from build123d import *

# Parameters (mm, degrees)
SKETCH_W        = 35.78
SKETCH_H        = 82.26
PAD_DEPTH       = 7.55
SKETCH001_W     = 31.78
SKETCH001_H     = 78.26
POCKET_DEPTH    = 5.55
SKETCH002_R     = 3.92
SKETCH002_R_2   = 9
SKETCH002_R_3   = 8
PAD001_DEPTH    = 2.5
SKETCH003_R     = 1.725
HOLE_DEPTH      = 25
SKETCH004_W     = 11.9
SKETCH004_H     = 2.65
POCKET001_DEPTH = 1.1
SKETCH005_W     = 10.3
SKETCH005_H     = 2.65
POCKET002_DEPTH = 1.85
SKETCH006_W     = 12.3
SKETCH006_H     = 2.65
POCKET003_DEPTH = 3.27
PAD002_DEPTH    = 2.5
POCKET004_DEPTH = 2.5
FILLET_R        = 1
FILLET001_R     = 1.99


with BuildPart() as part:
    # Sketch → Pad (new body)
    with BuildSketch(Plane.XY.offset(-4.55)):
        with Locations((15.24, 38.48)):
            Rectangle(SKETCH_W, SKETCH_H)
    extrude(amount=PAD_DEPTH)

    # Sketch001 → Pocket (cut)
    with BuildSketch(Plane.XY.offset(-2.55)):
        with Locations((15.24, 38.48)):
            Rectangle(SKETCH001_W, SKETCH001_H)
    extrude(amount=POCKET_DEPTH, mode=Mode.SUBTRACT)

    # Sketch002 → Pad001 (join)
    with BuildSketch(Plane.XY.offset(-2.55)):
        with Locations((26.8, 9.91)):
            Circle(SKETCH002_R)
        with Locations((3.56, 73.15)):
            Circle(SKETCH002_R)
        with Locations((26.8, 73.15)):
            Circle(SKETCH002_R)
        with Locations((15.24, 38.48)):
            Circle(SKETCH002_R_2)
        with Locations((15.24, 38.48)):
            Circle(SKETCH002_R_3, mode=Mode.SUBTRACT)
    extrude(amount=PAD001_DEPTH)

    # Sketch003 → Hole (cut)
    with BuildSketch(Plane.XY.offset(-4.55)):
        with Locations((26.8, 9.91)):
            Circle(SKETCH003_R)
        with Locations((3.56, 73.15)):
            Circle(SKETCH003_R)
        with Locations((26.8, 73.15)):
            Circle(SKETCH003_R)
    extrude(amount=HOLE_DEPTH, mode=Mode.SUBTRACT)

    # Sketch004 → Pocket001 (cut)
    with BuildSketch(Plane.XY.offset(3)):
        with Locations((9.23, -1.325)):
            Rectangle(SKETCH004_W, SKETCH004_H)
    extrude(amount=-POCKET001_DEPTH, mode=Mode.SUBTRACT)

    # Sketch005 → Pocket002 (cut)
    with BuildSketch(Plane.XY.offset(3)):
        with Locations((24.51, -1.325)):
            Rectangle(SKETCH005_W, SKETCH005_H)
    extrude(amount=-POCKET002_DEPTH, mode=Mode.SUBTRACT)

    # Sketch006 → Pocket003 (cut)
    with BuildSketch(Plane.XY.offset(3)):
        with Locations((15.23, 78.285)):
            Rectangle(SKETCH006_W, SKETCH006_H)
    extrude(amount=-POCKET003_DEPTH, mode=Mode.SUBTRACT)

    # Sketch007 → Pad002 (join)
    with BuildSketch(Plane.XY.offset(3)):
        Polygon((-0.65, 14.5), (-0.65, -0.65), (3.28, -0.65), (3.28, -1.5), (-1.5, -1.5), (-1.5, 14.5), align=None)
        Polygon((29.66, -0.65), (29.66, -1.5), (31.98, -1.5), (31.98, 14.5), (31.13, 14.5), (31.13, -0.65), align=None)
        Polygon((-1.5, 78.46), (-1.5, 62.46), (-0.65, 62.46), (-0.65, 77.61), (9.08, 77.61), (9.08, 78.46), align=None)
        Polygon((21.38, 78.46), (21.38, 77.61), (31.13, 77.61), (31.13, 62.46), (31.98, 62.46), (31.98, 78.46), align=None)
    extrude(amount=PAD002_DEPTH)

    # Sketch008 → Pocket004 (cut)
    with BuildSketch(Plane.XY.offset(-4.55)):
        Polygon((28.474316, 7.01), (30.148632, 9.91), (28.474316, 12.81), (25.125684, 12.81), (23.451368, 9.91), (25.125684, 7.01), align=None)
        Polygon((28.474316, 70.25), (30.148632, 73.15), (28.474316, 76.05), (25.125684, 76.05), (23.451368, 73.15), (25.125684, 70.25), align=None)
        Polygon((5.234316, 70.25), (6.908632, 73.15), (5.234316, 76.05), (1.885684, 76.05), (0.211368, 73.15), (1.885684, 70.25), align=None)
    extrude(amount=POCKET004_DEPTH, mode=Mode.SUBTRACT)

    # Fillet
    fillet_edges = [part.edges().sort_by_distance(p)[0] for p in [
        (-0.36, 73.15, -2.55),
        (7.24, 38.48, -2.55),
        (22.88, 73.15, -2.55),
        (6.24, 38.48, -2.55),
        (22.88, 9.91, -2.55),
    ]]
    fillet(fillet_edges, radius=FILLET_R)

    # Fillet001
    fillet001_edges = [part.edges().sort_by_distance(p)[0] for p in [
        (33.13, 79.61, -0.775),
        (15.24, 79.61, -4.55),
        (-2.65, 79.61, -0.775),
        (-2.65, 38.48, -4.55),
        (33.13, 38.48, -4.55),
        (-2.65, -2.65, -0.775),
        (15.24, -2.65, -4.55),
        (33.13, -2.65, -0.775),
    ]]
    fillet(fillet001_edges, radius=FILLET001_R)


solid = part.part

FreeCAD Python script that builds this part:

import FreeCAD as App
import Part
import Sketcher
from FreeCAD import Vector
Q = App.Units.Quantity


def edges_at(feature, points):
    """Names of the edges that pass closest to the given points."""
    edges = feature.Shape.Edges
    near = lambda p: min(range(len(edges)), key=lambda i: edges[i].distToShape(Part.Vertex(*p))[0])
    return sorted({f"Edge{near(p) + 1}" for p in points})

doc = App.newDocument("Part")
body = doc.addObject("PartDesign::Body", "Body")

# Sketch on XY plane
sketch1 = doc.addObject("Sketcher::SketchObject", "Sketch")
body.addObject(sketch1)
sketch1.AttachmentSupport = (doc.XY_Plane, [""])
sketch1.MapMode = "FlatFace"
sketch1.AttachmentOffset = App.Placement(Vector(0, 0, -4.55), App.Rotation())
sketch1.addGeometry(Part.LineSegment(Vector(-3, 80, 0), Vector(-3, -3, 0)), False)
sketch1.addGeometry(Part.LineSegment(Vector(-3, -3, 0), Vector(33, -3, 0)), False)
sketch1.addGeometry(Part.LineSegment(Vector(33, -3, 0), Vector(33, 80, 0)), False)
sketch1.addGeometry(Part.LineSegment(Vector(33, 80, 0), Vector(-3, 80, 0)), False)
sketch1.addConstraint(Sketcher.Constraint("Coincident", 0, 2, 1, 1))
sketch1.addConstraint(Sketcher.Constraint("Coincident", 1, 2, 2, 1))
sketch1.addConstraint(Sketcher.Constraint("Coincident", 2, 2, 3, 1))
sketch1.addConstraint(Sketcher.Constraint("Coincident", 3, 2, 0, 1))
sketch1.addConstraint(Sketcher.Constraint("Vertical", 0))
sketch1.addConstraint(Sketcher.Constraint("Horizontal", 1))
sketch1.addConstraint(Sketcher.Constraint("Vertical", 2))
sketch1.addConstraint(Sketcher.Constraint("Horizontal", 3))
sketch1.addConstraint(Sketcher.Constraint("DistanceX", 1, 1, 1, 2, 35.78))
sketch1.addConstraint(Sketcher.Constraint("DistanceY", 0, 2, 0, 1, 82.26))
sketch1.addConstraint(Sketcher.Constraint("DistanceX", 0, 2, -1, 1, 2.65))
sketch1.addConstraint(Sketcher.Constraint("DistanceY", 0, 2, -1, 1, 2.65))
pad1 = doc.addObject("PartDesign::Pad", "Pad")
body.addObject(pad1)
pad1.Profile = sketch1
pad1.Length = 7.55

# Sketch on XY plane
sketch2 = doc.addObject("Sketcher::SketchObject", "Sketch001")
body.addObject(sketch2)
sketch2.AttachmentSupport = (doc.XY_Plane, [""])
sketch2.MapMode = "FlatFace"
sketch2.AttachmentOffset = App.Placement(Vector(0, 0, -2.55), App.Rotation())
sketch2.addGeometry(Part.LineSegment(Vector(-1, 78, 0), Vector(-1, -1, 0)), False)
sketch2.addGeometry(Part.LineSegment(Vector(-1, -1, 0), Vector(31, -1, 0)), False)
sketch2.addGeometry(Part.LineSegment(Vector(31, -1, 0), Vector(31, 78, 0)), False)
sketch2.addGeometry(Part.LineSegment(Vector(31, 78, 0), Vector(-1, 78, 0)), False)
sketch2.addConstraint(Sketcher.Constraint("Coincident", 0, 2, 1, 1))
sketch2.addConstraint(Sketcher.Constraint("Coincident", 1, 2, 2, 1))
sketch2.addConstraint(Sketcher.Constraint("Coincident", 2, 2, 3, 1))
sketch2.addConstraint(Sketcher.Constraint("Coincident", 3, 2, 0, 1))
sketch2.addConstraint(Sketcher.Constraint("Vertical", 0))
sketch2.addConstraint(Sketcher.Constraint("Horizontal", 1))
sketch2.addConstraint(Sketcher.Constraint("Vertical", 2))
sketch2.addConstraint(Sketcher.Constraint("Horizontal", 3))
sketch2.addConstraint(Sketcher.Constraint("DistanceX", 1, 1, 1, 2, 31.78))
sketch2.addConstraint(Sketcher.Constraint("DistanceY", 0, 2, 0, 1, 78.26))
sketch2.addConstraint(Sketcher.Constraint("DistanceX", 0, 2, -1, 1, 0.65))
sketch2.addConstraint(Sketcher.Constraint("DistanceY", 0, 2, -1, 1, 0.65))
pocket1 = doc.addObject("PartDesign::Pocket", "Pocket")
body.addObject(pocket1)
pocket1.Profile = sketch2
pocket1.Length = 5.55
pocket1.Reversed = True

# Sketch on XY plane
sketch3 = doc.addObject("Sketcher::SketchObject", "Sketch002")
body.addObject(sketch3)
sketch3.AttachmentSupport = (doc.XY_Plane, [""])
sketch3.MapMode = "FlatFace"
sketch3.AttachmentOffset = App.Placement(Vector(0, 0, -2.55), App.Rotation())
sketch3.addGeometry(Part.Circle(Vector(26.8, 9.9, 0), Vector(0, 0, 1), 3.9), False)
sketch3.addGeometry(Part.Circle(Vector(3.6, 73.2, 0), Vector(0, 0, 1), 3.9), False)
sketch3.addGeometry(Part.Circle(Vector(26.8, 73.2, 0), Vector(0, 0, 1), 3.9), False)
sketch3.addGeometry(Part.Circle(Vector(15.2, 38.5, 0), Vector(0, 0, 1), 9), False)
sketch3.addGeometry(Part.Circle(Vector(15.2, 38.5, 0), Vector(0, 0, 1), 8), False)
sketch3.addConstraint(Sketcher.Constraint("Coincident", 4, 3, 3, 3))
sketch3.addConstraint(Sketcher.Constraint("Equal", 0, 1))
sketch3.addConstraint(Sketcher.Constraint("Equal", 1, 2))
sketch3.addConstraint(Sketcher.Constraint("Horizontal", 1, 3, 2, 3))
sketch3.addConstraint(Sketcher.Constraint("Vertical", 0, 3, 2, 3))
sketch3.addConstraint(Sketcher.Constraint("Diameter", 3, 18.0))
sketch3.addConstraint(Sketcher.Constraint("Diameter", 4, 16.0))
sketch3.addConstraint(Sketcher.Constraint("Diameter", 0, 7.84))
sketch3.addConstraint(Sketcher.Constraint("DistanceX", -1, 1, 0, 3, 26.8))
sketch3.addConstraint(Sketcher.Constraint("DistanceY", -1, 1, 0, 3, 9.91))
sketch3.addConstraint(Sketcher.Constraint("DistanceX", -1, 1, 1, 3, 3.56))
sketch3.addConstraint(Sketcher.Constraint("DistanceY", -1, 1, 1, 3, 73.15))
sketch3.addConstraint(Sketcher.Constraint("DistanceX", -1, 1, 3, 3, 15.24))
sketch3.addConstraint(Sketcher.Constraint("DistanceY", -1, 1, 3, 3, 38.48))
pad2 = doc.addObject("PartDesign::Pad", "Pad001")
body.addObject(pad2)
pad2.Profile = sketch3
pad2.Length = 2.5

# Sketch on XY plane
sketch4 = doc.addObject("Sketcher::SketchObject", "Sketch003")
body.addObject(sketch4)
sketch4.AttachmentSupport = (doc.XY_Plane, [""])
sketch4.MapMode = "FlatFace"
sketch4.AttachmentOffset = App.Placement(Vector(0, 0, -4.55), App.Rotation())
sketch4.addGeometry(Part.Circle(Vector(26.8, 9.9, 0), Vector(0, 0, 1), 1.7), False)
sketch4.addGeometry(Part.Circle(Vector(3.6, 73.2, 0), Vector(0, 0, 1), 1.7), False)
sketch4.addGeometry(Part.Circle(Vector(26.8, 73.2, 0), Vector(0, 0, 1), 1.7), False)
sketch4.addConstraint(Sketcher.Constraint("Equal", 0, 1))
sketch4.addConstraint(Sketcher.Constraint("Equal", 1, 2))
sketch4.addConstraint(Sketcher.Constraint("Horizontal", 1, 3, 2, 3))
sketch4.addConstraint(Sketcher.Constraint("Vertical", 0, 3, 2, 3))
sketch4.addConstraint(Sketcher.Constraint("Diameter", 0, 3.45))
sketch4.addConstraint(Sketcher.Constraint("DistanceX", -1, 1, 0, 3, 26.8))
sketch4.addConstraint(Sketcher.Constraint("DistanceY", -1, 1, 0, 3, 9.91))
sketch4.addConstraint(Sketcher.Constraint("DistanceX", -1, 1, 1, 3, 3.56))
sketch4.addConstraint(Sketcher.Constraint("DistanceY", -1, 1, 1, 3, 73.15))
pocket2 = doc.addObject("PartDesign::Pocket", "Pocket001")
body.addObject(pocket2)
pocket2.Profile = sketch4
pocket2.Length = 25
pocket2.Reversed = True

# Sketch on XY plane
sketch5 = doc.addObject("Sketcher::SketchObject", "Sketch004")
body.addObject(sketch5)
sketch5.AttachmentSupport = (doc.XY_Plane, [""])
sketch5.MapMode = "FlatFace"
sketch5.AttachmentOffset = App.Placement(Vector(0, 0, 3), App.Rotation())
sketch5.addGeometry(Part.LineSegment(Vector(3.3, 0, 0), Vector(3.3, -2.6, 0)), False)
sketch5.addGeometry(Part.LineSegment(Vector(3.3, -2.6, 0), Vector(15.2, -2.6, 0)), False)
sketch5.addGeometry(Part.LineSegment(Vector(15.2, -2.6, 0), Vector(15.2, 0, 0)), False)
sketch5.addGeometry(Part.LineSegment(Vector(15.2, 0, 0), Vector(3.3, 0, 0)), False)
sketch5.addConstraint(Sketcher.Constraint("Coincident", 0, 2, 1, 1))
sketch5.addConstraint(Sketcher.Constraint("Coincident", 1, 2, 2, 1))
sketch5.addConstraint(Sketcher.Constraint("Coincident", 2, 2, 3, 1))
sketch5.addConstraint(Sketcher.Constraint("Coincident", 3, 2, 0, 1))
sketch5.addConstraint(Sketcher.Constraint("Vertical", 0))
sketch5.addConstraint(Sketcher.Constraint("Horizontal", 1))
sketch5.addConstraint(Sketcher.Constraint("Vertical", 2))
sketch5.addConstraint(Sketcher.Constraint("Horizontal", 3))
sketch5.addConstraint(Sketcher.Constraint("PointOnObject", 2, 2, -1))
sketch5.addConstraint(Sketcher.Constraint("DistanceX", 1, 1, 1, 2, 11.9))
sketch5.addConstraint(Sketcher.Constraint("DistanceY", 0, 2, 0, 1, 2.65))
sketch5.addConstraint(Sketcher.Constraint("DistanceX", -1, 1, 0, 2, 3.28))
pocket3 = doc.addObject("PartDesign::Pocket", "Pocket002")
body.addObject(pocket3)
pocket3.Profile = sketch5
pocket3.Length = 1.1

# Sketch on XY plane
sketch6 = doc.addObject("Sketcher::SketchObject", "Sketch005")
body.addObject(sketch6)
sketch6.AttachmentSupport = (doc.XY_Plane, [""])
sketch6.MapMode = "FlatFace"
sketch6.AttachmentOffset = App.Placement(Vector(0, 0, 3), App.Rotation())
sketch6.addGeometry(Part.LineSegment(Vector(19.4, 0, 0), Vector(19.4, -2.6, 0)), False)
sketch6.addGeometry(Part.LineSegment(Vector(19.4, -2.6, 0), Vector(29.7, -2.6, 0)), False)
sketch6.addGeometry(Part.LineSegment(Vector(29.7, -2.6, 0), Vector(29.7, 0, 0)), False)
sketch6.addGeometry(Part.LineSegment(Vector(29.7, 0, 0), Vector(19.4, 0, 0)), False)
sketch6.addConstraint(Sketcher.Constraint("Coincident", 0, 2, 1, 1))
sketch6.addConstraint(Sketcher.Constraint("Coincident", 1, 2, 2, 1))
sketch6.addConstraint(Sketcher.Constraint("Coincident", 2, 2, 3, 1))
sketch6.addConstraint(Sketcher.Constraint("Coincident", 3, 2, 0, 1))
sketch6.addConstraint(Sketcher.Constraint("Vertical", 0))
sketch6.addConstraint(Sketcher.Constraint("Horizontal", 1))
sketch6.addConstraint(Sketcher.Constraint("Vertical", 2))
sketch6.addConstraint(Sketcher.Constraint("Horizontal", 3))
sketch6.addConstraint(Sketcher.Constraint("PointOnObject", 2, 2, -1))
sketch6.addConstraint(Sketcher.Constraint("DistanceX", 1, 1, 1, 2, 10.3))
sketch6.addConstraint(Sketcher.Constraint("DistanceY", 0, 2, 0, 1, 2.65))
sketch6.addConstraint(Sketcher.Constraint("DistanceX", -1, 1, 0, 2, 19.36))
pocket4 = doc.addObject("PartDesign::Pocket", "Pocket003")
body.addObject(pocket4)
pocket4.Profile = sketch6
pocket4.Length = 1.85

# Sketch on XY plane
sketch7 = doc.addObject("Sketcher::SketchObject", "Sketch006")
body.addObject(sketch7)
sketch7.AttachmentSupport = (doc.XY_Plane, [""])
sketch7.MapMode = "FlatFace"
sketch7.AttachmentOffset = App.Placement(Vector(0, 0, 3), App.Rotation())
sketch7.addGeometry(Part.LineSegment(Vector(9.1, 79.6, 0), Vector(9.1, 77, 0)), False)
sketch7.addGeometry(Part.LineSegment(Vector(9.1, 77, 0), Vector(21.4, 77, 0)), False)
sketch7.addGeometry(Part.LineSegment(Vector(21.4, 77, 0), Vector(21.4, 79.6, 0)), False)
sketch7.addGeometry(Part.LineSegment(Vector(21.4, 79.6, 0), Vector(9.1, 79.6, 0)), False)
sketch7.addConstraint(Sketcher.Constraint("Coincident", 0, 2, 1, 1))
sketch7.addConstraint(Sketcher.Constraint("Coincident", 1, 2, 2, 1))
sketch7.addConstraint(Sketcher.Constraint("Coincident", 2, 2, 3, 1))
sketch7.addConstraint(Sketcher.Constraint("Coincident", 3, 2, 0, 1))
sketch7.addConstraint(Sketcher.Constraint("Vertical", 0))
sketch7.addConstraint(Sketcher.Constraint("Horizontal", 1))
sketch7.addConstraint(Sketcher.Constraint("Vertical", 2))
sketch7.addConstraint(Sketcher.Constraint("Horizontal", 3))
sketch7.addConstraint(Sketcher.Constraint("DistanceX", 1, 1, 1, 2, 12.3))
sketch7.addConstraint(Sketcher.Constraint("DistanceY", 0, 2, 0, 1, 2.65))
sketch7.addConstraint(Sketcher.Constraint("DistanceX", -1, 1, 0, 2, 9.08))
sketch7.addConstraint(Sketcher.Constraint("DistanceY", -1, 1, 0, 2, 76.96))
pocket5 = doc.addObject("PartDesign::Pocket", "Pocket004")
body.addObject(pocket5)
pocket5.Profile = sketch7
pocket5.Length = 3.27

# Sketch on XY plane
sketch8 = doc.addObject("Sketcher::SketchObject", "Sketch007")
body.addObject(sketch8)
sketch8.AttachmentSupport = (doc.XY_Plane, [""])
sketch8.MapMode = "FlatFace"
sketch8.AttachmentOffset = App.Placement(Vector(0, 0, 3), App.Rotation())
sketch8.addGeometry(Part.LineSegment(Vector(-0.7, -0.7, 0), Vector(-0.7, 14.5, 0)), False)
sketch8.addGeometry(Part.LineSegment(Vector(-0.7, 14.5, 0), Vector(-1.5, 14.5, 0)), False)
sketch8.addGeometry(Part.LineSegment(Vector(-1.5, 14.5, 0), Vector(-1.5, -1.5, 0)), False)
sketch8.addGeometry(Part.LineSegment(Vector(-1.5, -1.5, 0), Vector(3.3, -1.5, 0)), False)
sketch8.addGeometry(Part.LineSegment(Vector(3.3, -1.5, 0), Vector(3.3, -0.7, 0)), False)
sketch8.addGeometry(Part.LineSegment(Vector(3.3, -0.7, 0), Vector(-0.7, -0.7, 0)), False)
sketch8.addGeometry(Part.LineSegment(Vector(29.7, -0.7, 0), Vector(29.7, -1.5, 0)), False)
sketch8.addGeometry(Part.LineSegment(Vector(29.7, -1.5, 0), Vector(32, -1.5, 0)), False)
sketch8.addGeometry(Part.LineSegment(Vector(32, -1.5, 0), Vector(32, 14.5, 0)), False)
sketch8.addGeometry(Part.LineSegment(Vector(32, 14.5, 0), Vector(31.1, 14.5, 0)), False)
sketch8.addGeometry(Part.LineSegment(Vector(31.1, 14.5, 0), Vector(31.1, -0.7, 0)), False)
sketch8.addGeometry(Part.LineSegment(Vector(31.1, -0.7, 0), Vector(29.7, -0.7, 0)), False)
sketch8.addGeometry(Part.LineSegment(Vector(-1.5, 78.5, 0), Vector(-1.5, 62.5, 0)), False)
sketch8.addGeometry(Part.LineSegment(Vector(-1.5, 62.5, 0), Vector(-0.7, 62.5, 0)), False)
sketch8.addGeometry(Part.LineSegment(Vector(-0.7, 62.5, 0), Vector(-0.7, 77.6, 0)), False)
sketch8.addGeometry(Part.LineSegment(Vector(-0.7, 77.6, 0), Vector(9.1, 77.6, 0)), False)
sketch8.addGeometry(Part.LineSegment(Vector(9.1, 77.6, 0), Vector(9.1, 78.5, 0)), False)
sketch8.addGeometry(Part.LineSegment(Vector(9.1, 78.5, 0), Vector(-1.5, 78.5, 0)), False)
sketch8.addGeometry(Part.LineSegment(Vector(21.4, 78.5, 0), Vector(21.4, 77.6, 0)), False)
sketch8.addGeometry(Part.LineSegment(Vector(21.4, 77.6, 0), Vector(31.1, 77.6, 0)), False)
sketch8.addGeometry(Part.LineSegment(Vector(31.1, 77.6, 0), Vector(31.1, 62.5, 0)), False)
sketch8.addGeometry(Part.LineSegment(Vector(31.1, 62.5, 0), Vector(32, 62.5, 0)), False)
sketch8.addGeometry(Part.LineSegment(Vector(32, 62.5, 0), Vector(32, 78.5, 0)), False)
sketch8.addGeometry(Part.LineSegment(Vector(32, 78.5, 0), Vector(21.4, 78.5, 0)), False)
sketch8.addConstraint(Sketcher.Constraint("Coincident", 0, 2, 1, 1))
sketch8.addConstraint(Sketcher.Constraint("Coincident", 1, 2, 2, 1))
sketch8.addConstraint(Sketcher.Constraint("Coincident", 2, 2, 3, 1))
sketch8.addConstraint(Sketcher.Constraint("Coincident", 3, 2, 4, 1))
sketch8.addConstraint(Sketcher.Constraint("Coincident", 4, 2, 5, 1))
sketch8.addConstraint(Sketcher.Constraint("Coincident", 5, 2, 0, 1))
sketch8.addConstraint(Sketcher.Constraint("Coincident", 6, 2, 7, 1))
sketch8.addConstraint(Sketcher.Constraint("Coincident", 7, 2, 8, 1))
sketch8.addConstraint(Sketcher.Constraint("Coincident", 8, 2, 9, 1))
sketch8.addConstraint(Sketcher.Constraint("Coincident", 9, 2, 10, 1))
sketch8.addConstraint(Sketcher.Constraint("Coincident", 10, 2, 11, 1))
sketch8.addConstraint(Sketcher.Constraint("Coincident", 11, 2, 6, 1))
sketch8.addConstraint(Sketcher.Constraint("Coincident", 12, 2, 13, 1))
sketch8.addConstraint(Sketcher.Constraint("Coincident", 13, 2, 14, 1))
sketch8.addConstraint(Sketcher.Constraint("Coincident", 14, 2, 15, 1))
sketch8.addConstraint(Sketcher.Constraint("Coincident", 15, 2, 16, 1))
sketch8.addConstraint(Sketcher.Constraint("Coincident", 16, 2, 17, 1))
sketch8.addConstraint(Sketcher.Constraint("Coincident", 17, 2, 12, 1))
sketch8.addConstraint(Sketcher.Constraint("Coincident", 18, 2, 19, 1))
sketch8.addConstraint(Sketcher.Constraint("Coincident", 19, 2, 20, 1))
sketch8.addConstraint(Sketcher.Constraint("Coincident", 20, 2, 21, 1))
sketch8.addConstraint(Sketcher.Constraint("Coincident", 21, 2, 22, 1))
sketch8.addConstraint(Sketcher.Constraint("Coincident", 22, 2, 23, 1))
sketch8.addConstraint(Sketcher.Constraint("Coincident", 23, 2, 18, 1))
sketch8.addConstraint(Sketcher.Constraint("Vertical", 0))
sketch8.addConstraint(Sketcher.Constraint("Horizontal", 1))
sketch8.addConstraint(Sketcher.Constraint("Vertical", 2))
sketch8.addConstraint(Sketcher.Constraint("Horizontal", 3))
sketch8.addConstraint(Sketcher.Constraint("Vertical", 4))
sketch8.addConstraint(Sketcher.Constraint("Horizontal", 5))
sketch8.addConstraint(Sketcher.Constraint("Vertical", 6))
sketch8.addConstraint(Sketcher.Constraint("Horizontal", 7))
sketch8.addConstraint(Sketcher.Constraint("Vertical", 8))
sketch8.addConstraint(Sketcher.Constraint("Horizontal", 9))
sketch8.addConstraint(Sketcher.Constraint("Vertical", 10))
sketch8.addConstraint(Sketcher.Constraint("Horizontal", 11))
sketch8.addConstraint(Sketcher.Constraint("Vertical", 12))
sketch8.addConstraint(Sketcher.Constraint("Horizontal", 13))
sketch8.addConstraint(Sketcher.Constraint("Vertical", 14))
sketch8.addConstraint(Sketcher.Constraint("Horizontal", 15))
sketch8.addConstraint(Sketcher.Constraint("Vertical", 16))
sketch8.addConstraint(Sketcher.Constraint("Horizontal", 17))
sketch8.addConstraint(Sketcher.Constraint("Vertical", 18))
sketch8.addConstraint(Sketcher.Constraint("Horizontal", 19))
sketch8.addConstraint(Sketcher.Constraint("Vertical", 20))
sketch8.addConstraint(Sketcher.Constraint("Horizontal", 21))
sketch8.addConstraint(Sketcher.Constraint("Vertical", 22))
sketch8.addConstraint(Sketcher.Constraint("Horizontal", 23))
sketch8.addConstraint(Sketcher.Constraint("Horizontal", 3, 2, 6, 2))
sketch8.addConstraint(Sketcher.Constraint("Horizontal", 1, 2, 8, 2))
sketch8.addConstraint(Sketcher.Constraint("Horizontal", 5, 2, 10, 2))
sketch8.addConstraint(Sketcher.Constraint("Horizontal", 15, 2, 18, 2))
sketch8.addConstraint(Sketcher.Constraint("Horizontal", 13, 2, 20, 2))
sketch8.addConstraint(Sketcher.Constraint("Horizontal", 17, 2, 22, 2))
sketch8.addConstraint(Sketcher.Constraint("Vertical", 2, 2, 12, 2))
sketch8.addConstraint(Sketcher.Constraint("Vertical", 5, 2, 13, 2))
sketch8.addConstraint(Sketcher.Constraint("Vertical", 10, 2, 19, 2))
sketch8.addConstraint(Sketcher.Constraint("Vertical", 8, 2, 21, 2))
sketch8.addConstraint(Sketcher.Constraint("Equal", 1, 9))
sketch8.addConstraint(Sketcher.Constraint("Equal", 21, 4))
sketch8.addConstraint(Sketcher.Constraint("Equal", 8, 12))
sketch8.addConstraint(Sketcher.Constraint("Equal", 10, 14))
sketch8.addConstraint(Sketcher.Constraint("DistanceY", 2, 2, 2, 1, 16.0))
sketch8.addConstraint(Sketcher.Constraint("DistanceX", 23, 2, 23, 1, 10.6))
sketch8.addConstraint(Sketcher.Constraint("DistanceX", 1, 2, 1, 1, 0.85))
sketch8.addConstraint(Sketcher.Constraint("DistanceX", 3, 1, 3, 2, 4.78))
sketch8.addConstraint(Sketcher.Constraint("DistanceX", 7, 1, 7, 2, 2.32))
sketch8.addConstraint(Sketcher.Constraint("DistanceX", 15, 1, 15, 2, 9.73))
sketch8.addConstraint(Sketcher.Constraint("DistanceY", -1, 1, 0, 2, 14.5))
sketch8.addConstraint(Sketcher.Constraint("DistanceX", 1, 2, -1, 1, 1.5))
sketch8.addConstraint(Sketcher.Constraint("DistanceX", 3, 2, 7, 2, 28.7))
sketch8.addConstraint(Sketcher.Constraint("DistanceY", -1, 1, 12, 2, 62.46))
pad3 = doc.addObject("PartDesign::Pad", "Pad002")
body.addObject(pad3)
pad3.Profile = sketch8
pad3.Length = 2.5

# Sketch on XY plane
sketch9 = doc.addObject("Sketcher::SketchObject", "Sketch008")
body.addObject(sketch9)
sketch9.AttachmentSupport = (doc.XY_Plane, [""])
sketch9.MapMode = "FlatFace"
sketch9.AttachmentOffset = App.Placement(Vector(0, 0, -4.55), App.Rotation())
sketch9.addGeometry(Part.LineSegment(Vector(28.5, 7, 0), Vector(30.1, 9.9, 0)), False)
sketch9.addGeometry(Part.LineSegment(Vector(30.1, 9.9, 0), Vector(28.5, 12.8, 0)), False)
sketch9.addGeometry(Part.LineSegment(Vector(28.5, 12.8, 0), Vector(25.1, 12.8, 0)), False)
sketch9.addGeometry(Part.LineSegment(Vector(25.1, 12.8, 0), Vector(23.5, 9.9, 0)), False)
sketch9.addGeometry(Part.LineSegment(Vector(23.5, 9.9, 0), Vector(25.1, 7, 0)), False)
sketch9.addGeometry(Part.LineSegment(Vector(25.1, 7, 0), Vector(28.5, 7, 0)), False)
sketch9.addGeometry(Part.LineSegment(Vector(28.5, 70.2, 0), Vector(30.1, 73.2, 0)), False)
sketch9.addGeometry(Part.LineSegment(Vector(30.1, 73.2, 0), Vector(28.5, 76, 0)), False)
sketch9.addGeometry(Part.LineSegment(Vector(28.5, 76, 0), Vector(25.1, 76, 0)), False)
sketch9.addGeometry(Part.LineSegment(Vector(25.1, 76, 0), Vector(23.5, 73.2, 0)), False)
sketch9.addGeometry(Part.LineSegment(Vector(23.5, 73.2, 0), Vector(25.1, 70.2, 0)), False)
sketch9.addGeometry(Part.LineSegment(Vector(25.1, 70.2, 0), Vector(28.5, 70.2, 0)), False)
sketch9.addGeometry(Part.LineSegment(Vector(5.2, 70.2, 0), Vector(6.9, 73.2, 0)), False)
sketch9.addGeometry(Part.LineSegment(Vector(6.9, 73.2, 0), Vector(5.2, 76, 0)), False)
sketch9.addGeometry(Part.LineSegment(Vector(5.2, 76, 0), Vector(1.9, 76, 0)), False)
sketch9.addGeometry(Part.LineSegment(Vector(1.9, 76, 0), Vector(0.2, 73.2, 0)), False)
sketch9.addGeometry(Part.LineSegment(Vector(0.2, 73.2, 0), Vector(1.9, 70.2, 0)), False)
sketch9.addGeometry(Part.LineSegment(Vector(1.9, 70.2, 0), Vector(5.2, 70.2, 0)), False)
sketch9.addConstraint(Sketcher.Constraint("Coincident", 0, 2, 1, 1))
sketch9.addConstraint(Sketcher.Constraint("Coincident", 1, 2, 2, 1))
sketch9.addConstraint(Sketcher.Constraint("Coincident", 2, 2, 3, 1))
sketch9.addConstraint(Sketcher.Constraint("Coincident", 3, 2, 4, 1))
sketch9.addConstraint(Sketcher.Constraint("Coincident", 4, 2, 5, 1))
sketch9.addConstraint(Sketcher.Constraint("Coincident", 5, 2, 0, 1))
sketch9.addConstraint(Sketcher.Constraint("Coincident", 6, 2, 7, 1))
sketch9.addConstraint(Sketcher.Constraint("Coincident", 7, 2, 8, 1))
sketch9.addConstraint(Sketcher.Constraint("Coincident", 8, 2, 9, 1))
sketch9.addConstraint(Sketcher.Constraint("Coincident", 9, 2, 10, 1))
sketch9.addConstraint(Sketcher.Constraint("Coincident", 10, 2, 11, 1))
sketch9.addConstraint(Sketcher.Constraint("Coincident", 11, 2, 6, 1))
sketch9.addConstraint(Sketcher.Constraint("Coincident", 12, 2, 13, 1))
sketch9.addConstraint(Sketcher.Constraint("Coincident", 13, 2, 14, 1))
sketch9.addConstraint(Sketcher.Constraint("Coincident", 14, 2, 15, 1))
sketch9.addConstraint(Sketcher.Constraint("Coincident", 15, 2, 16, 1))
sketch9.addConstraint(Sketcher.Constraint("Coincident", 16, 2, 17, 1))
sketch9.addConstraint(Sketcher.Constraint("Coincident", 17, 2, 12, 1))
sketch9.addConstraint(Sketcher.Constraint("Horizontal", 2))
sketch9.addConstraint(Sketcher.Constraint("Horizontal", 5))
sketch9.addConstraint(Sketcher.Constraint("Horizontal", 8))
sketch9.addConstraint(Sketcher.Constraint("Horizontal", 11))
sketch9.addConstraint(Sketcher.Constraint("Horizontal", 14))
sketch9.addConstraint(Sketcher.Constraint("Horizontal", 17))
sketch9.addConstraint(Sketcher.Constraint("Parallel", 0, 3))
sketch9.addConstraint(Sketcher.Constraint("Parallel", 1, 4))
sketch9.addConstraint(Sketcher.Constraint("Parallel", 3, 6))
sketch9.addConstraint(Sketcher.Constraint("Parallel", 4, 7))
sketch9.addConstraint(Sketcher.Constraint("Parallel", 6, 9))
sketch9.addConstraint(Sketcher.Constraint("Parallel", 7, 10))
sketch9.addConstraint(Sketcher.Constraint("Parallel", 9, 12))
sketch9.addConstraint(Sketcher.Constraint("Parallel", 10, 13))
sketch9.addConstraint(Sketcher.Constraint("Parallel", 12, 15))
sketch9.addConstraint(Sketcher.Constraint("Parallel", 13, 16))
sketch9.addConstraint(Sketcher.Constraint("Horizontal", 0, 2, 3, 2))
sketch9.addConstraint(Sketcher.Constraint("Horizontal", 6, 2, 9, 2))
sketch9.addConstraint(Sketcher.Constraint("Horizontal", 9, 2, 12, 2))
sketch9.addConstraint(Sketcher.Constraint("Horizontal", 8, 2, 13, 2))
sketch9.addConstraint(Sketcher.Constraint("Horizontal", 12, 2, 15, 2))
sketch9.addConstraint(Sketcher.Constraint("Horizontal", 11, 2, 16, 2))
sketch9.addConstraint(Sketcher.Constraint("Vertical", 2, 2, 4, 2))
sketch9.addConstraint(Sketcher.Constraint("Vertical", 1, 2, 5, 2))
sketch9.addConstraint(Sketcher.Constraint("Vertical", 0, 2, 6, 2))
sketch9.addConstraint(Sketcher.Constraint("Vertical", 5, 2, 7, 2))
sketch9.addConstraint(Sketcher.Constraint("Vertical", 4, 2, 8, 2))
sketch9.addConstraint(Sketcher.Constraint("Vertical", 8, 2, 10, 2))
sketch9.addConstraint(Sketcher.Constraint("Equal", 11, 14))
sketch9.addConstraint(Sketcher.Constraint("Angle", 0, Q("59.999997 deg")))
sketch9.addConstraint(Sketcher.Constraint("DistanceY", 0, 2, 1, 2, 2.9))
sketch9.addConstraint(Sketcher.Constraint("DistanceY", -1, 1, 0, 2, 9.91))
sketch9.addConstraint(Sketcher.Constraint("DistanceY", -1, 1, 6, 2, 73.15))
sketch9.addConstraint(Sketcher.Constraint("DistanceX", 13, 2, 7, 2, 23.24))
sketch9.addConstraint(Sketcher.Constraint("DistanceX", 14, 2, 14, 1, 3.348632))
sketch9.addConstraint(Sketcher.Constraint("DistanceX", -1, 1, 0, 2, 30.148632))
pocket6 = doc.addObject("PartDesign::Pocket", "Pocket005")
body.addObject(pocket6)
pocket6.Profile = sketch9
pocket6.Length = 2.5
pocket6.Reversed = True
doc.recompute()

fillet = doc.addObject("PartDesign::Fillet", "Fillet")
body.addObject(fillet)
fillet.Base = (pocket6, edges_at(pocket6, [
    (-0.36, 73.15, -2.55),
    (7.24, 38.48, -2.55),
    (22.88, 73.15, -2.55),
    (6.24, 38.48, -2.55),
    (22.88, 9.91, -2.55),
]))
fillet.Radius = 1
doc.recompute()

fillet2 = doc.addObject("PartDesign::Fillet", "Fillet001")
body.addObject(fillet2)
fillet2.Base = (fillet, edges_at(fillet, [
    (33.13, 79.61, -0.775),
    (15.24, 79.61, -4.55),
    (-2.65, 79.61, -0.775),
    (-2.65, 38.48, -4.55),
    (33.13, 38.48, -4.55),
    (-2.65, -2.65, -0.775),
    (15.24, -2.65, -4.55),
    (33.13, -2.65, -0.775),
]))
fillet2.Radius = 1.99

doc.recompute()
